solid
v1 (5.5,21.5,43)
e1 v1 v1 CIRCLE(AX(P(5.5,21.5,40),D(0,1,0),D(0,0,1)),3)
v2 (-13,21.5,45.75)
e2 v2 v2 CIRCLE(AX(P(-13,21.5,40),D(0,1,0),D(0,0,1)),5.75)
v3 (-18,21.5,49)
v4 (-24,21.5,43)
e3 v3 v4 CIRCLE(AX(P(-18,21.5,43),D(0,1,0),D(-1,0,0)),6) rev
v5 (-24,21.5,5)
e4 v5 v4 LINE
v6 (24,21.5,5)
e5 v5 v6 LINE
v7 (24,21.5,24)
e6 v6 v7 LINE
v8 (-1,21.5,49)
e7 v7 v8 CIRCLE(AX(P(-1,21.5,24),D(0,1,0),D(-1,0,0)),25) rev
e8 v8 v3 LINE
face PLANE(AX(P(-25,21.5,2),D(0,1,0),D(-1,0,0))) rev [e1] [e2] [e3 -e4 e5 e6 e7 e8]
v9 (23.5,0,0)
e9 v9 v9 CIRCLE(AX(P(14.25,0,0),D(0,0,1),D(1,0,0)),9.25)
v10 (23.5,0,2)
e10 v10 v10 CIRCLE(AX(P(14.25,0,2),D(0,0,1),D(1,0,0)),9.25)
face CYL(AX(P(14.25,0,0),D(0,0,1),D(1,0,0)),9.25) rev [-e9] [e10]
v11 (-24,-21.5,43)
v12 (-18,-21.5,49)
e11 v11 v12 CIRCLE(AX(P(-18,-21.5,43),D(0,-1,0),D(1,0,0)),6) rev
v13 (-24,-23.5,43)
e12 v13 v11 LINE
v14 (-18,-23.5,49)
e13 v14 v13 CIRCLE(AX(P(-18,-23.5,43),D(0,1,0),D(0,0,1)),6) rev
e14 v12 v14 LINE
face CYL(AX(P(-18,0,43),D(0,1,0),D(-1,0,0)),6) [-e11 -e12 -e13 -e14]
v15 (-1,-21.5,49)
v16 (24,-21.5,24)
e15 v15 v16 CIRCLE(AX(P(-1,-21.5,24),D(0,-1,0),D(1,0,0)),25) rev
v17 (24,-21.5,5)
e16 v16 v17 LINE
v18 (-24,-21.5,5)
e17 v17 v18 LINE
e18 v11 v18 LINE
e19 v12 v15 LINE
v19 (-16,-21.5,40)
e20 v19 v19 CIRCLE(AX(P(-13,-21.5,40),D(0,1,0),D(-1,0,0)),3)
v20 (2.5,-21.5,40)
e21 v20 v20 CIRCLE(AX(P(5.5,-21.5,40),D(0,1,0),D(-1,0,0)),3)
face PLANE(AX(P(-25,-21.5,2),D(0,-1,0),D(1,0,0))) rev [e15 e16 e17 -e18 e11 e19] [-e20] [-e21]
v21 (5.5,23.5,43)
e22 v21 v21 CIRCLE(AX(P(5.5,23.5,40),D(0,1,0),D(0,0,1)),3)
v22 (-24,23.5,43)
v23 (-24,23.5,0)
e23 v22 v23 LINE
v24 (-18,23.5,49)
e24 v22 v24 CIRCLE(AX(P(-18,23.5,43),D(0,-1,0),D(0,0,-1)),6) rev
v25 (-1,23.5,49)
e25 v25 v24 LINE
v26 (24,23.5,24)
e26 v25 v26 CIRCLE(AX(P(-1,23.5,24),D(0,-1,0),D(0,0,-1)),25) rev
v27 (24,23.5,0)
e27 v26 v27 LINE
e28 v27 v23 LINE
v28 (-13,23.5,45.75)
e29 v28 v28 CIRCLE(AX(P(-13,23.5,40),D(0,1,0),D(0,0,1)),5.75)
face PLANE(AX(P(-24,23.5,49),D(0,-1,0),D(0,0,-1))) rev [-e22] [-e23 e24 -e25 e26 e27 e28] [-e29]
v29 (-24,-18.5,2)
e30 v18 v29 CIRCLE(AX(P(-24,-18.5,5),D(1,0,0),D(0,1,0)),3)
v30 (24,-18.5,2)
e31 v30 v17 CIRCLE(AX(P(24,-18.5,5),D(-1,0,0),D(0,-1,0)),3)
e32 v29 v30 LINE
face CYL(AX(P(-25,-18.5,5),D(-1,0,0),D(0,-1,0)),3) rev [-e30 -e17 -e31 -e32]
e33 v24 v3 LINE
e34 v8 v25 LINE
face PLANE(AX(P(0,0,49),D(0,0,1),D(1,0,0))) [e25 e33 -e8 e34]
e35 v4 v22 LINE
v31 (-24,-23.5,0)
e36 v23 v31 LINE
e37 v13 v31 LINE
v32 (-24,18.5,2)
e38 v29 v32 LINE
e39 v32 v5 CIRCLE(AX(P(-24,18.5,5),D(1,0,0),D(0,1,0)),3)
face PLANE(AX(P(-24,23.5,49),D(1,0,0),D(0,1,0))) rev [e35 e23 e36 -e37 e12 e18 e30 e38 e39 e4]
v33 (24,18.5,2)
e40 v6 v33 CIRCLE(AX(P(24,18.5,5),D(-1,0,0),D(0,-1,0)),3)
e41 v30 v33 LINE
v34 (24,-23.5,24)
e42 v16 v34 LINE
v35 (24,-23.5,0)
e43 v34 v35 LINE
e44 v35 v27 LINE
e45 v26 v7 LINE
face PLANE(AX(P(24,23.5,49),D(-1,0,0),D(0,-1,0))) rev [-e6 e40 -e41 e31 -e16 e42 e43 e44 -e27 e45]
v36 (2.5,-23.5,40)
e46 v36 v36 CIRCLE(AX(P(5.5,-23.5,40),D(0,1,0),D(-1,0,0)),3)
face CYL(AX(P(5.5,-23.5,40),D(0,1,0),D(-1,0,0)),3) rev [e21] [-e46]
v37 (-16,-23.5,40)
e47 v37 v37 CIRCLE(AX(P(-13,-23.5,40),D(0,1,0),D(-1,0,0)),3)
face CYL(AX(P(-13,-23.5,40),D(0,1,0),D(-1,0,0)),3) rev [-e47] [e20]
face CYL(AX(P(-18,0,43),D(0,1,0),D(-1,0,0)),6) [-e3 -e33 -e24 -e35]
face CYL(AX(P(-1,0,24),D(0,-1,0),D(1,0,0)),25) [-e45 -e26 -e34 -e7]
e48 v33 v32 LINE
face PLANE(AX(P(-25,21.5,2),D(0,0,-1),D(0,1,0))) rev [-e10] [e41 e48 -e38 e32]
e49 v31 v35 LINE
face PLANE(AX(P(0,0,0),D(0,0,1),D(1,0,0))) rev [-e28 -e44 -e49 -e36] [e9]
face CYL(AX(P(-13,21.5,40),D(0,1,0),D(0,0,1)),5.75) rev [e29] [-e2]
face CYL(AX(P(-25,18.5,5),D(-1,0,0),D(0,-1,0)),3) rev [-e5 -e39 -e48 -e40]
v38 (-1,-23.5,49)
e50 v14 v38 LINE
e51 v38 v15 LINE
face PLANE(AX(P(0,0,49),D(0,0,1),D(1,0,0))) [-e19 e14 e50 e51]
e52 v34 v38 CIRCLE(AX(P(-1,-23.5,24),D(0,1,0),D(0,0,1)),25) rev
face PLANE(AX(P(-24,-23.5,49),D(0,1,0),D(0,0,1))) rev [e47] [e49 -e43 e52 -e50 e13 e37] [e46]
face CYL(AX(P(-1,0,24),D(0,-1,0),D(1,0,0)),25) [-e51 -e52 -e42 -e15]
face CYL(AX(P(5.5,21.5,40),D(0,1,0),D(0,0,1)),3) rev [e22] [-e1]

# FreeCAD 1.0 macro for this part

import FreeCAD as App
import Part
import Sketcher
Q = App.Units.Quantity


def edges_at(feature, points):
    """Names of the edges that pass closest to the given points."""
    edges = feature.Shape.Edges
    near = lambda p: min(range(len(edges)), key=lambda i: edges[i].distToShape(Part.Vertex(*p))[0])
    return sorted({f"Edge{near(p) + 1}" for p in points})


def add_polygon(sketch, points):
    """Adds a closed chain of lines whose ends are joined by coincident constraints."""
    first, n = sketch.GeometryCount, len(points)
    for a, b in zip(points, points[1:] + points[:1]):
        sketch.addGeometry(Part.LineSegment(App.Vector(*a, 0), App.Vector(*b, 0)), False)
    for i in range(n):
        sketch.addConstraint(Sketcher.Constraint("Coincident", first + i, 2, first + (i + 1) % n, 1))

doc = App.newDocument("Part")
body = doc.addObject("PartDesign::Body", "Body")

sketch1 = body.newObject("Sketcher::SketchObject", "Sketch")
sketch1.AttachmentSupport = (doc.getObject("XY_Plane"), [""])
sketch1.MapMode = "FlatFace"
add_polygon(sketch1, [(-24, 24), (-24, -24), (24, -24), (24, 24)])
sketch1.addConstraint([
    Sketcher.Constraint("Vertical", 0),
    Sketcher.Constraint("Horizontal", 1),
    Sketcher.Constraint("Vertical", 2),
    Sketcher.Constraint("Horizontal", 3),
    Sketcher.Constraint("Symmetric", 0, 2, 2, 2, -1, 1),
    Sketcher.Constraint("DistanceX", 1, 1, 1, 2, Q("48 mm")),
    Sketcher.Constraint("DistanceY", 0, 2, 0, 1, Q("47 mm")),
])
pad1 = body.newObject("PartDesign::Pad", "Pad")
pad1.Profile = sketch1
pad1.Length = 49

sketch2 = body.newObject("Sketcher::SketchObject", "Sketch001")
sketch2.AttachmentSupport = (doc.getObject("YZ_Plane"), [""])
sketch2.MapMode = "FlatFace"
sketch2.AttachmentOffset = App.Placement(App.Vector(0, 0, 24), App.Rotation())
add_polygon(sketch2, [(22, 52), (-22, 52), (-22, 2), (22, 2)])
sketch2.addConstraint([
    Sketcher.Constraint("Horizontal", 0),
    Sketcher.Constraint("Vertical", 1),
    Sketcher.Constraint("Horizontal", 2),
    Sketcher.Constraint("Vertical", 3),
    Sketcher.Constraint("DistanceX", 0, 2, 0, 1, Q("43 mm")),
    Sketcher.Constraint("DistanceY", 1, 2, 1, 1, Q("50 mm")),
    Sketcher.Constraint("DistanceY", -1, 1, 0, 2, Q("52 mm")),
    Sketcher.Constraint("DistanceX", 0, 2, -1, 1, Q("21.5 mm")),
])
pocket1 = body.newObject("PartDesign::Pocket", "Pocket")
pocket1.Profile = sketch2
pocket1.Length = 49

sketch3 = body.newObject("Sketcher::SketchObject", "Sketch002")
sketch3.AttachmentSupport = (doc.getObject("XY_Plane"), [""])
sketch3.MapMode = "FlatFace"
sketch3.AttachmentOffset = App.Placement(App.Vector(0, 0, 2), App.Rotation())
sketch3.addGeometry(Part.Circle(App.Vector(14, 0, 0), App.Vector(0, 0, 1), 9), False)
sketch3.addConstraint([
    Sketcher.Constraint("PointOnObject", 0, 3, -1),
    Sketcher.Constraint("Diameter", 0, Q("18.5 mm")),
    Sketcher.Constraint("DistanceX", -1, 1, 0, 3, Q("14.25 mm")),
])
pocket2 = body.newObject("PartDesign::Pocket", "Pocket001")
pocket2.Profile = sketch3
pocket2.Length = 2

sketch4 = body.newObject("Sketcher::SketchObject", "Sketch003")
sketch4.AttachmentSupport = (doc.getObject("XZ_Plane"), [""])
sketch4.MapMode = "FlatFace"
sketch4.AttachmentOffset = App.Placement(App.Vector(0, 0, -23.5), App.Rotation())
sketch4.addGeometry([
    Part.Circle(App.Vector(-13, 40, 0), App.Vector(0, 0, 1), 5.8),
    Part.Circle(App.Vector(5.5, 40, 0), App.Vector(0, 0, 1), 3),
], False)
sketch4.addConstraint([
    Sketcher.Constraint("Horizontal", 0, 3, 1, 3),
    Sketcher.Constraint("Diameter", 1, Q("6 mm")),
    Sketcher.Constraint("Diameter", 0, Q("11.5 mm")),
    Sketcher.Constraint("DistanceX", 0, 3, -1, 1, Q("13 mm")),
    Sketcher.Constraint("DistanceY", -1, 1, 0, 3, Q("40 mm")),
    Sketcher.Constraint("DistanceX", -1, 1, 1, 3, Q("5.5 mm")),
])
pocket3 = body.newObject("PartDesign::Pocket", "Pocket002")
pocket3.Profile = sketch4
pocket3.Length = 2
pocket3.Reversed = True

sketch5 = body.newObject("Sketcher::SketchObject", "Sketch004")
sketch5.AttachmentSupport = (doc.getObject("XZ_Plane"), [""])
sketch5.MapMode = "FlatFace"
sketch5.AttachmentOffset = App.Placement(App.Vector(0, 0, 21.5), App.Rotation())
sketch5.addGeometry([
    Part.Circle(App.Vector(5.5, 40, 0), App.Vector(0, 0, 1), 3),
    Part.Circle(App.Vector(-13, 40, 0), App.Vector(0, 0, 1), 3),
], False)
sketch5.addConstraint([
    Sketcher.Constraint("Equal", 0, 1),
    Sketcher.Constraint("Horizontal", 0, 3, 1, 3),
    Sketcher.Constraint("Diameter", 0, Q("6 mm")),
    Sketcher.Constraint("DistanceY", -1, 1, 0, 3, Q("40 mm")),
    Sketcher.Constraint("DistanceX", 1, 3, -1, 1, Q("13 mm")),
    Sketcher.Constraint("DistanceX", -1, 1, 0, 3, Q("5.5 mm")),
])
pocket4 = body.newObject("PartDesign::Pocket", "Pocket003")
pocket4.Profile = sketch5
pocket4.Length = 2
pocket4.Reversed = True
doc.recompute()

fillet = body.newObject("PartDesign::Fillet", "Fillet")
fillet.Base = (pocket4, edges_at(pocket4, [(24, 22.5, 49), (24, -22.5, 49)]))
fillet.Radius = 25
doc.recompute()

fillet2 = body.newObject("PartDesign::Fillet", "Fillet001")
fillet2.Base = (fillet, edges_at(fillet, [(-24, 22.5, 49), (-24, -22.5, 49)]))
fillet2.Radius = 6
doc.recompute()

fillet3 = body.newObject("PartDesign::Fillet", "Fillet002")
fillet3.Base = (fillet2, edges_at(fillet2, [(0, 21.5, 2), (0, -21.5, 2)]))
fillet3.Radius = 3

doc.recompute()
